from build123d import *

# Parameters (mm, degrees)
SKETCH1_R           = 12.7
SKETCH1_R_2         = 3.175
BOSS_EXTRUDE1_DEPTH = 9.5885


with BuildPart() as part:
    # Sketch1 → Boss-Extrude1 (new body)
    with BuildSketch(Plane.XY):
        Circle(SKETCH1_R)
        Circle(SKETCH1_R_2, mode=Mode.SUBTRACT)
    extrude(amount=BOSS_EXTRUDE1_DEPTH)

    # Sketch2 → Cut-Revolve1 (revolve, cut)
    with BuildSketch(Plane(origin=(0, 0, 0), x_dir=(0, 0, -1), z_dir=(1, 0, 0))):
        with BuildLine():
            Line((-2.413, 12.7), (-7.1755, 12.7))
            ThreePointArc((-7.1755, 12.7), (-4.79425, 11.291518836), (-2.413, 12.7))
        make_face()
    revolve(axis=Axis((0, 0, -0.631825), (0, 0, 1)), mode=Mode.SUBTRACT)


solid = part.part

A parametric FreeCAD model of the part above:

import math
import FreeCAD as App
import Part
import Sketcher
Q = App.Units.Quantity

doc = App.newDocument("Part")
body = doc.addObject("PartDesign::Body", "Body")

# Sketch on XY plane
sketch1 = body.newObject("Sketcher::SketchObject", "Sketch")
sketch1.AttachmentSupport = (doc.getObject("XY_Plane"), [""])
sketch1.MapMode = "FlatFace"
sketch1.addGeometry([
    Part.Circle(App.Vector(0, 0, 0), App.Vector(0, 0, 1), 12.7),
    Part.Circle(App.Vector(0, 0, 0), App.Vector(0, 0, 1), 3.2),
], False)
sketch1.addConstraint([
    Sketcher.Constraint("Coincident", 0, 3, -1, 1),
    Sketcher.Constraint("Coincident", 1, 3, -1, 1),
    Sketcher.Constraint("Diameter", 0, Q("1 in")),
    Sketcher.Constraint("Diameter", 1, Q("0.25 in")),
])
pad1 = body.newObject("PartDesign::Pad", "Pad")
pad1.Profile = sketch1
pad1.Length = Q("0.3775 in")

# Sketch on YZ plane
sketch2 = body.newObject("Sketcher::SketchObject", "Sketch001")
sketch2.AttachmentSupport = (doc.getObject("YZ_Plane"), [""])
sketch2.MapMode = "FlatFace"
sketch2.addGeometry([
    Part.LineSegment(App.Vector(12.7, 2.4, 0), App.Vector(12.7, 7.2, 0)),
    Part.ArcOfCircle(Part.Circle(App.Vector(14, 4.8, 0), App.Vector(0, 0, 1), 2.7), math.radians(119), math.radians(241)),
], False)
sketch2.addConstraint([
    Sketcher.Constraint("Coincident", 0, 1, 1, 2),
    Sketcher.Constraint("Coincident", 1, 1, 0, 2),
    Sketcher.Constraint("Vertical", 0),
    Sketcher.Constraint("DistanceX", -1, 1, 0, 1, Q("0.5 in")),
    Sketcher.Constraint("DistanceY", 0, 1, 0, 2, Q("0.1875 in")),
    Sketcher.Constraint("DistanceY", -1, 1, 0, 1, Q("0.095 in")),
    Sketcher.Constraint("Radius", 1, 2.717172),
])
groove = body.newObject("PartDesign::Groove", "Groove")
groove.Profile = sketch2
groove.ReferenceAxis = (sketch2, ["V_Axis"])
groove.Angle = 360

doc.recompute()
